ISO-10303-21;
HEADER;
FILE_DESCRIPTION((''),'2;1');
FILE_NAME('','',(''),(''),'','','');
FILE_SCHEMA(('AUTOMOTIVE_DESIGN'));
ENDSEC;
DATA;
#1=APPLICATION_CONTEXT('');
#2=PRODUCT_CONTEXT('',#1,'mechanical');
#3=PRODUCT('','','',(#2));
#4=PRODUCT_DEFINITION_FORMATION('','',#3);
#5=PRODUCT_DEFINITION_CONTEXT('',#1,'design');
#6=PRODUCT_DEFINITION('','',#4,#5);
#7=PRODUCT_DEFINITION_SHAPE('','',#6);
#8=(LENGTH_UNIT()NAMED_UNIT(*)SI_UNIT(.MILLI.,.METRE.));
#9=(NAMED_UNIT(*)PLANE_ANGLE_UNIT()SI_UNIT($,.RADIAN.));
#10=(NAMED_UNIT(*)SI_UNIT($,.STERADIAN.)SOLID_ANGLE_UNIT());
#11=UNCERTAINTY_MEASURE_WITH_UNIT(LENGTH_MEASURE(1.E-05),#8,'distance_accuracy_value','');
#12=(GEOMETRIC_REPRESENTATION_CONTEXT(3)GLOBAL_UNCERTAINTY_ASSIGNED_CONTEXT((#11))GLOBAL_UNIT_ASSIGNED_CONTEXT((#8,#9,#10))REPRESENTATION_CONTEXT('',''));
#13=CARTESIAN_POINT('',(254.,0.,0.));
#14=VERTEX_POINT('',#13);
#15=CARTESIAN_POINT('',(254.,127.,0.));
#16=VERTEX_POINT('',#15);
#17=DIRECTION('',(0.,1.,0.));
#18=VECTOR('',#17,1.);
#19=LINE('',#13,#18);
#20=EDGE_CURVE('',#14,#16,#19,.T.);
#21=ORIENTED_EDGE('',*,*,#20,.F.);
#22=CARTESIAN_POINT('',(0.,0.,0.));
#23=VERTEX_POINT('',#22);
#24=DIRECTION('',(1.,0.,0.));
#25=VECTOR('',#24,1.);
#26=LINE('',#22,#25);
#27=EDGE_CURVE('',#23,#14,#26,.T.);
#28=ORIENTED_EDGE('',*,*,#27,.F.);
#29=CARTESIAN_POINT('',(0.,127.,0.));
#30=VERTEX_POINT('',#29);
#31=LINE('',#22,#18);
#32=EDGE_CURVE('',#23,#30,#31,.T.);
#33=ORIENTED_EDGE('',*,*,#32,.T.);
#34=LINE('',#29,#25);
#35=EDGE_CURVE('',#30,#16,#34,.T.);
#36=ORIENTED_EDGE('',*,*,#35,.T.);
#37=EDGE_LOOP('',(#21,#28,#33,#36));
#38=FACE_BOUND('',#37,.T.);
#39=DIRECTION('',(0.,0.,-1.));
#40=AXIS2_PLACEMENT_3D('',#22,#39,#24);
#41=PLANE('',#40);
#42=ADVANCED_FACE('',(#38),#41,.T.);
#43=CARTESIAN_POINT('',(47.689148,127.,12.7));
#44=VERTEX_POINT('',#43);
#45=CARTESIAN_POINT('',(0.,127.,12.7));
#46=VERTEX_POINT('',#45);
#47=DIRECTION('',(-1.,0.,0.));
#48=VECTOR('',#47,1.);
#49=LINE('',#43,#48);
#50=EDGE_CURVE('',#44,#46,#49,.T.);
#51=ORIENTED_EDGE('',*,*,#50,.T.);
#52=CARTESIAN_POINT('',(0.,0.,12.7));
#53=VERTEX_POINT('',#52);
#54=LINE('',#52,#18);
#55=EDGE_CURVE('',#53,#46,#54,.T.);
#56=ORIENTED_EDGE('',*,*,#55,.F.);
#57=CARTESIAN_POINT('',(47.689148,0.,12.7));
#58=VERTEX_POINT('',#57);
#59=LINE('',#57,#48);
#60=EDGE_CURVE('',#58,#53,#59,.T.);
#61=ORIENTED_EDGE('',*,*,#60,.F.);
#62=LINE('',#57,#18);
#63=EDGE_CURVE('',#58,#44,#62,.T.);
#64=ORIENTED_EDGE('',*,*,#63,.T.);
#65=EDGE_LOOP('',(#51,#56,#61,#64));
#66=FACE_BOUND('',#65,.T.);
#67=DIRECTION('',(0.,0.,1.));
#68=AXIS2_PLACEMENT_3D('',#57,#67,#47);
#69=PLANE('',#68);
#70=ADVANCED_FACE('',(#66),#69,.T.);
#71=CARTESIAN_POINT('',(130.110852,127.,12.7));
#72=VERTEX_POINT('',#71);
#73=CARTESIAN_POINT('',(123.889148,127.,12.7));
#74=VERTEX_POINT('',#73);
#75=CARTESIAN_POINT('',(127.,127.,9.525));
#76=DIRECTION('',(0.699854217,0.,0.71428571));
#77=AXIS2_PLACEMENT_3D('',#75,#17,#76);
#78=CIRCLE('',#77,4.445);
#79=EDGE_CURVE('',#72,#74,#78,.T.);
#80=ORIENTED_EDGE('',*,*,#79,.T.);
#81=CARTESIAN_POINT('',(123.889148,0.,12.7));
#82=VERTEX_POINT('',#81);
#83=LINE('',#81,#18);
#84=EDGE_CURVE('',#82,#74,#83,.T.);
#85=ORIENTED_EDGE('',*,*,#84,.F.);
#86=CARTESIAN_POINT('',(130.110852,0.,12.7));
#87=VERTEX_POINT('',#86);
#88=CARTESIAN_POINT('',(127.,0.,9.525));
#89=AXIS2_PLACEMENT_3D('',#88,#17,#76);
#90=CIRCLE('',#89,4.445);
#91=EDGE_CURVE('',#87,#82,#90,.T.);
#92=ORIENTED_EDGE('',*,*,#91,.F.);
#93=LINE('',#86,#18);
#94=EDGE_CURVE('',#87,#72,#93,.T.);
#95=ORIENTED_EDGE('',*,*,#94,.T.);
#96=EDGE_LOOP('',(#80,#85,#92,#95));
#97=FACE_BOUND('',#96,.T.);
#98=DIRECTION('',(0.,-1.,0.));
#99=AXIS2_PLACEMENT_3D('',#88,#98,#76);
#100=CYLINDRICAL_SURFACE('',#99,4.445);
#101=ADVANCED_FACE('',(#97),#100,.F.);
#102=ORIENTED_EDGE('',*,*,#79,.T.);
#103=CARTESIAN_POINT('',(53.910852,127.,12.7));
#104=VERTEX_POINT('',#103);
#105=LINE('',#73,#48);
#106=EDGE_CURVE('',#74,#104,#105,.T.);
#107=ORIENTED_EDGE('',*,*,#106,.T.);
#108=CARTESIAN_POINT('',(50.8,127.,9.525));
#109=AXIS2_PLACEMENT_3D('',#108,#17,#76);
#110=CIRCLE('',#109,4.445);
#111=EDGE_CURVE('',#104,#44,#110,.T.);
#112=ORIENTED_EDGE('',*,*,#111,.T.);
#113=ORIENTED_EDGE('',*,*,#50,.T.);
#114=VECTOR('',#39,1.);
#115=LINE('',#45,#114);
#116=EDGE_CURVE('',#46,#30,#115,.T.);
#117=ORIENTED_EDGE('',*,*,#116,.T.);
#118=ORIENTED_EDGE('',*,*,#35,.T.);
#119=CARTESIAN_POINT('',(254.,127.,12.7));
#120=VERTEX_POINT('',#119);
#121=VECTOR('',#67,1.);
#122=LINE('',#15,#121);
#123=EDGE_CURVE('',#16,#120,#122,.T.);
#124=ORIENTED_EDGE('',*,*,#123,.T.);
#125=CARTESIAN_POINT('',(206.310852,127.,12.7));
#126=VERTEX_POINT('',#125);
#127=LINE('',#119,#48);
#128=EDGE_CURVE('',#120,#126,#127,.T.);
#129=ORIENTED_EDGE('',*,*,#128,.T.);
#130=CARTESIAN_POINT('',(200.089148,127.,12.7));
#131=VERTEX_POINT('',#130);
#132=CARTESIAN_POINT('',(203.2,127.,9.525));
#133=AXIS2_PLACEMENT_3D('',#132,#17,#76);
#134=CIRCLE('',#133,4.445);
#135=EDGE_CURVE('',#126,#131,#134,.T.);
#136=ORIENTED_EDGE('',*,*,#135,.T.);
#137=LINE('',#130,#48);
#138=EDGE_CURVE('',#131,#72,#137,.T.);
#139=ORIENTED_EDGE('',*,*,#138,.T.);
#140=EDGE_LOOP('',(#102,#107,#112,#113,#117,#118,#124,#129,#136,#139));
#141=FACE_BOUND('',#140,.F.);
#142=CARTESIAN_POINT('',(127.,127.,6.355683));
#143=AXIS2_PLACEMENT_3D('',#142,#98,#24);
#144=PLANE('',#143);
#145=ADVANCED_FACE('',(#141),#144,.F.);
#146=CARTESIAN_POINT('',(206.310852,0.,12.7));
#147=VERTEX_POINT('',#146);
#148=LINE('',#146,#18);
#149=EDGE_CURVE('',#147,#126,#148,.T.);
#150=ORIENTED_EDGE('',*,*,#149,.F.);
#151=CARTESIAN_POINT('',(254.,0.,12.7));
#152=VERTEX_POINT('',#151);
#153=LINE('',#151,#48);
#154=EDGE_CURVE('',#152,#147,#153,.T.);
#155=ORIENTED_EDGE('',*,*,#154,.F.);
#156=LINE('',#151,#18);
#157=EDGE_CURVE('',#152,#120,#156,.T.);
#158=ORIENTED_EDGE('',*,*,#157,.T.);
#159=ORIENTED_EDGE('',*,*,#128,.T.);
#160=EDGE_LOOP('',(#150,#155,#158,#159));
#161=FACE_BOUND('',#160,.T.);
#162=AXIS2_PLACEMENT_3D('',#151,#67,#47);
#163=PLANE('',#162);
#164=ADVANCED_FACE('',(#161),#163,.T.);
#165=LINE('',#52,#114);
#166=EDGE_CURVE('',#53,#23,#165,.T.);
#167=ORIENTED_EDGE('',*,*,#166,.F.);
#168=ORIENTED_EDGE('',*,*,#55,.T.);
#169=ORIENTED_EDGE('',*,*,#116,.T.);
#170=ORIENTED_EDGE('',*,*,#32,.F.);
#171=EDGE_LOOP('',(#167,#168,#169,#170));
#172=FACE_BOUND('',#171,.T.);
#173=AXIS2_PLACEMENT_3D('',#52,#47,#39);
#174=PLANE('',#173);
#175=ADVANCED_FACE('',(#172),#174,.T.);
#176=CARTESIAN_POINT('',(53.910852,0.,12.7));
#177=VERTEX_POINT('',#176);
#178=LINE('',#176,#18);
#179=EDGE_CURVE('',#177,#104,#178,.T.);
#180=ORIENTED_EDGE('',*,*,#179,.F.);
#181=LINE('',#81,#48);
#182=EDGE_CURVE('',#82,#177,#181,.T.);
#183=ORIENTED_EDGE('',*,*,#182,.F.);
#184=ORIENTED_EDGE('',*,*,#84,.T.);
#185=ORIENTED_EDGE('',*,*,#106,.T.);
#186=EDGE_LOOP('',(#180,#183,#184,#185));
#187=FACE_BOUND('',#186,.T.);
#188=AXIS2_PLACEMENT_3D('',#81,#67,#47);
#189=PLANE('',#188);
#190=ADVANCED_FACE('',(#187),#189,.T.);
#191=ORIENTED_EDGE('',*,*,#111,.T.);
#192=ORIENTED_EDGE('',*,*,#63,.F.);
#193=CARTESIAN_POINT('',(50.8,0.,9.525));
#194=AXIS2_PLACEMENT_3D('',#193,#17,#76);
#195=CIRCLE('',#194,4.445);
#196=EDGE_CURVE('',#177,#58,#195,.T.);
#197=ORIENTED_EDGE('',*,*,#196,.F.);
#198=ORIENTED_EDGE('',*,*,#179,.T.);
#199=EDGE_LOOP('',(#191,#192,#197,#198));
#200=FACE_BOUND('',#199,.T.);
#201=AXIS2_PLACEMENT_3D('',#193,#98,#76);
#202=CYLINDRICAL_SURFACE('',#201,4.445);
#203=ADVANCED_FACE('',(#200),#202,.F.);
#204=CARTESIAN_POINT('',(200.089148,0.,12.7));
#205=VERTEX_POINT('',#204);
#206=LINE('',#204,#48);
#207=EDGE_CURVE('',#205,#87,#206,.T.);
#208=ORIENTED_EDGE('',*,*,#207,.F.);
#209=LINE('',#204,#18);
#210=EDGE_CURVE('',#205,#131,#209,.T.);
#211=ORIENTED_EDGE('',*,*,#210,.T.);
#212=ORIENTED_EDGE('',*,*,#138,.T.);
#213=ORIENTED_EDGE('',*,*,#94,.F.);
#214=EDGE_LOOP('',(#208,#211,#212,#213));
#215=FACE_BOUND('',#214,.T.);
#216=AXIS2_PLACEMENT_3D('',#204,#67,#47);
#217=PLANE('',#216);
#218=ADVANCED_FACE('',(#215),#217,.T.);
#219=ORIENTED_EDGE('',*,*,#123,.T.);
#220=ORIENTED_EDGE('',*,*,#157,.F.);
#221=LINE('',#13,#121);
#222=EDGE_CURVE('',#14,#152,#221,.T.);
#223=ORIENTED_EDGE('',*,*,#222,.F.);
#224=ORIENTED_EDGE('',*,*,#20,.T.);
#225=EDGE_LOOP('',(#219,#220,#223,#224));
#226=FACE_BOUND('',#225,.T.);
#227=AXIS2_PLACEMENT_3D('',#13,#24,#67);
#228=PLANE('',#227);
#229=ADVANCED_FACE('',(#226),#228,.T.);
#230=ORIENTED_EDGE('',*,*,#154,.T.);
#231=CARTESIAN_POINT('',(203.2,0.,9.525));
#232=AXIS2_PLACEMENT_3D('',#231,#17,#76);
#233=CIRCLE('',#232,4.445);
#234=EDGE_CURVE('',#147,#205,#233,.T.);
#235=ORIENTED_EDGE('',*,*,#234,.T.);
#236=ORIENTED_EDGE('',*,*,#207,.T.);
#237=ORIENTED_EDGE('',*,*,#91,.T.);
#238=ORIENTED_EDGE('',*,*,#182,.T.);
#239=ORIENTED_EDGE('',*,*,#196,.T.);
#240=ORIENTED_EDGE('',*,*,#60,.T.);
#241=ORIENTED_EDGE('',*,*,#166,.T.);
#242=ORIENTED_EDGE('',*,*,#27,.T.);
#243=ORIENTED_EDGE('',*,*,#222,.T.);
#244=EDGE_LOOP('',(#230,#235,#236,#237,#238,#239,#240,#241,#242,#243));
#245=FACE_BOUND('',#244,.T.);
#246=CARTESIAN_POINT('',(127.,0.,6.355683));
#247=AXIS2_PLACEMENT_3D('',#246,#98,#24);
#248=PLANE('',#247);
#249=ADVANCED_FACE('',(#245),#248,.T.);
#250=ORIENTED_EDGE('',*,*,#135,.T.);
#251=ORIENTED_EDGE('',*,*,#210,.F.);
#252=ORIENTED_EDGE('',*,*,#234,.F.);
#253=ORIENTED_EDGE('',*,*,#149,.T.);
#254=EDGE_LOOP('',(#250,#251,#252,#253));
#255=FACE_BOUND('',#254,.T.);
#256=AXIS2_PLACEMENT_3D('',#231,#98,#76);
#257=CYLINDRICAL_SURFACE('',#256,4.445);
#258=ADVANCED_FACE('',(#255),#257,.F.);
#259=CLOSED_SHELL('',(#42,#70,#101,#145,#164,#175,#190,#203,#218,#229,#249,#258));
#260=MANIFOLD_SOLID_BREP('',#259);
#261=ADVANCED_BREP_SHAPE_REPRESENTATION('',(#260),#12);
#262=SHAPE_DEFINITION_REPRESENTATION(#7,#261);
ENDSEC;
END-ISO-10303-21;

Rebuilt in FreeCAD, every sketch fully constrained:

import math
import FreeCAD as App
import Part
import Sketcher

V = App.Vector
Q = App.Units.Quantity

doc = App.newDocument("Part")
body = doc.addObject("PartDesign::Body", "Body")

# Sketch on XZ plane
sketch1 = body.newObject("Sketcher::SketchObject", "Sketch")
sketch1.AttachmentSupport = (doc.getObject("XZ_Plane"), [""])
sketch1.MapMode = "FlatFace"
sketch1.addGeometry(Part.LineSegment(V(0, 12.7, 0), V(0, 0, 0)), False)
sketch1.addGeometry(Part.LineSegment(V(0, 0, 0), V(254, 0, 0)), False)
sketch1.addGeometry(Part.LineSegment(V(254, 0, 0), V(254, 12.7, 0)), False)
sketch1.addGeometry(Part.LineSegment(V(254, 12.7, 0), V(206.3, 12.7, 0)), False)
sketch1.addGeometry(Part.ArcOfCircle(Part.Circle(V(203.2, 9.5, 0), V(0, 0, 1), 4.4), math.radians(134), math.radians(406)), False)
sketch1.addGeometry(Part.LineSegment(V(200.1, 12.7, 0), V(130.1, 12.7, 0)), False)
sketch1.addGeometry(Part.ArcOfCircle(Part.Circle(V(127, 9.5, 0), V(0, 0, 1), 4.4), math.radians(134), math.radians(406)), False)
sketch1.addGeometry(Part.LineSegment(V(123.9, 12.7, 0), V(53.9, 12.7, 0)), False)
sketch1.addGeometry(Part.ArcOfCircle(Part.Circle(V(50.8, 9.5, 0), V(0, 0, 1), 4.4), math.radians(134), math.radians(406)), False)
sketch1.addGeometry(Part.LineSegment(V(47.7, 12.7, 0), V(0, 12.7, 0)), False)
sketch1.addConstraint(Sketcher.Constraint("Coincident", 0, 2, 1, 1))
sketch1.addConstraint(Sketcher.Constraint("Coincident", 1, 2, 2, 1))
sketch1.addConstraint(Sketcher.Constraint("Coincident", 2, 2, 3, 1))
sketch1.addConstraint(Sketcher.Constraint("Coincident", 3, 2, 4, 2))
sketch1.addConstraint(Sketcher.Constraint("Coincident", 4, 1, 5, 1))
sketch1.addConstraint(Sketcher.Constraint("Coincident", 5, 2, 6, 2))
sketch1.addConstraint(Sketcher.Constraint("Coincident", 6, 1, 7, 1))
sketch1.addConstraint(Sketcher.Constraint("Coincident", 7, 2, 8, 2))
sketch1.addConstraint(Sketcher.Constraint("Coincident", 8, 1, 9, 1))
sketch1.addConstraint(Sketcher.Constraint("Coincident", 9, 2, 0, 1))
sketch1.addConstraint(Sketcher.Constraint("Vertical", 0))
sketch1.addConstraint(Sketcher.Constraint("Horizontal", 1))
sketch1.addConstraint(Sketcher.Constraint("Vertical", 2))
sketch1.addConstraint(Sketcher.Constraint("Horizontal", 3))
sketch1.addConstraint(Sketcher.Constraint("Horizontal", 5))
sketch1.addConstraint(Sketcher.Constraint("Horizontal", 7))
sketch1.addConstraint(Sketcher.Constraint("Horizontal", 9))
sketch1.addConstraint(Sketcher.Constraint("Coincident", 0, 2, -1, 1))
sketch1.addConstraint(Sketcher.Constraint("Equal", 4, 6))
sketch1.addConstraint(Sketcher.Constraint("Equal", 6, 8))
sketch1.addConstraint(Sketcher.Constraint("Horizontal", 4, 3, 6, 3))
sketch1.addConstraint(Sketcher.Constraint("Horizontal", 6, 3, 8, 3))
sketch1.addConstraint(Sketcher.Constraint("Horizontal", 3, 2, 4, 1))
sketch1.addConstraint(Sketcher.Constraint("Horizontal", 5, 2, 6, 1))
sketch1.addConstraint(Sketcher.Constraint("Horizontal", 7, 2, 8, 1))
sketch1.addConstraint(Sketcher.Constraint("Equal", 5, 7))
sketch1.addConstraint(Sketcher.Constraint("Equal", 3, 9))
sketch1.addConstraint(Sketcher.Constraint("DistanceX", 1, 1, 1, 2, Q("10 in")))
sketch1.addConstraint(Sketcher.Constraint("DistanceY", 0, 2, 0, 1, Q("0.5 in")))
sketch1.addConstraint(Sketcher.Constraint("DistanceX", -1, 1, 4, 3, Q("8 in")))
sketch1.addConstraint(Sketcher.Constraint("Radius", 4, Q("0.175 in")))
sketch1.addConstraint(Sketcher.Constraint("DistanceY", -1, 1, 4, 3, Q("0.375 in")))
pad1 = body.newObject("PartDesign::Pad", "Pad")
pad1.Profile = sketch1
pad1.Length = Q("5 in")
pad1.Reversed = True

doc.recompute()
